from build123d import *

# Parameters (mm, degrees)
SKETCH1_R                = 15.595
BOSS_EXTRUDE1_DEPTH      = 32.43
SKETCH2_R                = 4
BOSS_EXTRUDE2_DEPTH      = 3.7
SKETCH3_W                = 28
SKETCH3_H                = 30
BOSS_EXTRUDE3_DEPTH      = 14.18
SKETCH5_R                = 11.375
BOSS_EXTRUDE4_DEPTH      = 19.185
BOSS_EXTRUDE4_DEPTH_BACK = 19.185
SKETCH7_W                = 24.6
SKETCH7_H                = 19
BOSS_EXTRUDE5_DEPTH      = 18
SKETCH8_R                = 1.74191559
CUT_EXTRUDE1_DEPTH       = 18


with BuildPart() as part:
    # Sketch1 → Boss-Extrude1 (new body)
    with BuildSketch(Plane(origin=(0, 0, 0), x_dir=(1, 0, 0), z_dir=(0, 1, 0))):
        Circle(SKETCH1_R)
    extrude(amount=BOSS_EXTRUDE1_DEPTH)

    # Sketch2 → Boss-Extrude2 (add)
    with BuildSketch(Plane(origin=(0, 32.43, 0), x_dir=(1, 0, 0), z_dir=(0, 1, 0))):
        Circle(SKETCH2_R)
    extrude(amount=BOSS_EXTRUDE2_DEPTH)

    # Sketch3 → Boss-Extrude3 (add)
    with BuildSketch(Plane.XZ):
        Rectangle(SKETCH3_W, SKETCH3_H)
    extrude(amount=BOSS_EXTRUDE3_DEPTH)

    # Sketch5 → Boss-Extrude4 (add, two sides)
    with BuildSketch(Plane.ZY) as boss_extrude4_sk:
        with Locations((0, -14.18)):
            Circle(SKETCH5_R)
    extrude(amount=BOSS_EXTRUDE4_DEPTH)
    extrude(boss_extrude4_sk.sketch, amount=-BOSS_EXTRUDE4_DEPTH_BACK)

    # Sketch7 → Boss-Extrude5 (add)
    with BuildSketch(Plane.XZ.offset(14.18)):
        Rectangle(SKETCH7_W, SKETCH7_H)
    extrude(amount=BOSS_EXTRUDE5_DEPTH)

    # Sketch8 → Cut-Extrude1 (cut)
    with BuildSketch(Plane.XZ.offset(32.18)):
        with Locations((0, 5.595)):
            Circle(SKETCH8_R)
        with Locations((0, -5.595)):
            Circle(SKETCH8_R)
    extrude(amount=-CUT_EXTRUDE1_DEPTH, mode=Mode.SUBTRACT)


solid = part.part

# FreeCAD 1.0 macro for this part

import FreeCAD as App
import Part
import Sketcher
Q = App.Units.Quantity

doc = App.newDocument("Part")
body = doc.addObject("PartDesign::Body", "Body")

# Sketch on XZ plane
sketch1 = body.newObject("Sketcher::SketchObject", "Sketch")
sketch1.AttachmentSupport = (doc.getObject("XZ_Plane"), [""])
sketch1.MapMode = "FlatFace"
sketch1.addGeometry(Part.Circle(App.Vector(0, 0, 0), App.Vector(0, 0, 1), 15.595), False)
sketch1.addConstraint([
    Sketcher.Constraint("Coincident", 0, 3, -1, 1),
    Sketcher.Constraint("Diameter", 0, Q("31.19 mm")),
])
pad1 = body.newObject("PartDesign::Pad", "Pad")
pad1.Profile = sketch1
pad1.Length = 32.43
pad1.Reversed = True

# Sketch on XZ plane
sketch2 = body.newObject("Sketcher::SketchObject", "Sketch001")
sketch2.AttachmentSupport = (doc.getObject("XZ_Plane"), [""])
sketch2.MapMode = "FlatFace"
sketch2.AttachmentOffset = App.Placement(App.Vector(0, 0, -32.43), App.Rotation())
sketch2.addGeometry(Part.Circle(App.Vector(0, 0, 0), App.Vector(0, 0, 1), 4), False)
sketch2.addConstraint([
    Sketcher.Constraint("Coincident", 0, 3, -1, 1),
    Sketcher.Constraint("Diameter", 0, Q("8 mm")),
])
pad2 = body.newObject("PartDesign::Pad", "Pad001")
pad2.Profile = sketch2
pad2.Length = 3.7
pad2.Reversed = True

# Sketch on XZ plane
sketch3 = body.newObject("Sketcher::SketchObject", "Sketch002")
sketch3.AttachmentSupport = (doc.getObject("XZ_Plane"), [""])
sketch3.MapMode = "FlatFace"
sketch3.addGeometry([
    Part.LineSegment(App.Vector(-14, 15, 0), App.Vector(-14, -15, 0)),
    Part.LineSegment(App.Vector(-14, -15, 0), App.Vector(14, -15, 0)),
    Part.LineSegment(App.Vector(14, -15, 0), App.Vector(14, 15, 0)),
    Part.LineSegment(App.Vector(14, 15, 0), App.Vector(-14, 15, 0)),
], False)
sketch3.addConstraint([
    Sketcher.Constraint("Coincident", 0, 2, 1, 1),
    Sketcher.Constraint("Coincident", 1, 2, 2, 1),
    Sketcher.Constraint("Coincident", 2, 2, 3, 1),
    Sketcher.Constraint("Coincident", 3, 2, 0, 1),
    Sketcher.Constraint("Vertical", 0),
    Sketcher.Constraint("Horizontal", 1),
    Sketcher.Constraint("Vertical", 2),
    Sketcher.Constraint("Horizontal", 3),
    Sketcher.Constraint("Symmetric", 0, 2, 2, 2, -1, 1),
    Sketcher.Constraint("DistanceX", 1, 1, 1, 2, Q("28 mm")),
    Sketcher.Constraint("DistanceY", 0, 2, 0, 1, Q("30 mm")),
])
pad3 = body.newObject("PartDesign::Pad", "Pad002")
pad3.Profile = sketch3
pad3.Length = 14.18

# Sketch on YZ plane
sketch4 = body.newObject("Sketcher::SketchObject", "Sketch003")
sketch4.AttachmentSupport = (doc.getObject("YZ_Plane"), [""])
sketch4.MapMode = "FlatFace"
sketch4.addGeometry(Part.Circle(App.Vector(-14.18, 0, 0), App.Vector(0, 0, 1), 11.375), False)
sketch4.addConstraint([
    Sketcher.Constraint("PointOnObject", 0, 3, -1),
    Sketcher.Constraint("Diameter", 0, Q("22.75 mm")),
    Sketcher.Constraint("DistanceX", 0, 3, -1, 1, Q("14.18 mm")),
])
pad4 = body.newObject("PartDesign::Pad", "Pad003")
pad4.Profile = sketch4
pad4.Type = "TwoLengths"
pad4.Length = 19.185
pad4.Length2 = 19.185
pad4.Reversed = True

# Sketch on XZ plane
sketch5 = body.newObject("Sketcher::SketchObject", "Sketch004")
sketch5.AttachmentSupport = (doc.getObject("XZ_Plane"), [""])
sketch5.MapMode = "FlatFace"
sketch5.AttachmentOffset = App.Placement(App.Vector(0, 0, 14.18), App.Rotation())
sketch5.addGeometry([
    Part.LineSegment(App.Vector(-12.3, 9.5, 0), App.Vector(-12.3, -9.5, 0)),
    Part.LineSegment(App.Vector(-12.3, -9.5, 0), App.Vector(12.3, -9.5, 0)),
    Part.LineSegment(App.Vector(12.3, -9.5, 0), App.Vector(12.3, 9.5, 0)),
    Part.LineSegment(App.Vector(12.3, 9.5, 0), App.Vector(-12.3, 9.5, 0)),
], False)
sketch5.addConstraint([
    Sketcher.Constraint("Coincident", 0, 2, 1, 1),
    Sketcher.Constraint("Coincident", 1, 2, 2, 1),
    Sketcher.Constraint("Coincident", 2, 2, 3, 1),
    Sketcher.Constraint("Coincident", 3, 2, 0, 1),
    Sketcher.Constraint("Vertical", 0),
    Sketcher.Constraint("Horizontal", 1),
    Sketcher.Constraint("Vertical", 2),
    Sketcher.Constraint("Horizontal", 3),
    Sketcher.Constraint("Symmetric", 0, 2, 2, 2, -1, 1),
    Sketcher.Constraint("DistanceY", 0, 2, 0, 1, Q("19 mm")),
    Sketcher.Constraint("DistanceX", 1, 1, 1, 2, Q("24.6 mm")),
])
pad5 = body.newObject("PartDesign::Pad", "Pad004")
pad5.Profile = sketch5
pad5.Length = 18

# Sketch on XZ plane
sketch6 = body.newObject("Sketcher::SketchObject", "Sketch005")
sketch6.AttachmentSupport = (doc.getObject("XZ_Plane"), [""])
sketch6.MapMode = "FlatFace"
sketch6.AttachmentOffset = App.Placement(App.Vector(0, 0, 32.18), App.Rotation())
sketch6.addGeometry([
    Part.Circle(App.Vector(0, 5.595, 0), App.Vector(0, 0, 1), 1.741916),
    Part.Circle(App.Vector(0, -5.595, 0), App.Vector(0, 0, 1), 1.741916),
], False)
sketch6.addConstraint([
    Sketcher.Constraint("Equal", 0, 1),
    Sketcher.Constraint("Symmetric", 0, 3, 1, 3, -1, 1),
    Sketcher.Constraint("PointOnObject", 0, 3, -2),
    Sketcher.Constraint("Diameter", 0, Q("3.483831 mm")),
    Sketcher.Constraint("DistanceY", 1, 3, 0, 3, Q("11.19 mm")),
])
pocket1 = body.newObject("PartDesign::Pocket", "Pocket")
pocket1.Profile = sketch6
pocket1.Length = 18

doc.recompute()
